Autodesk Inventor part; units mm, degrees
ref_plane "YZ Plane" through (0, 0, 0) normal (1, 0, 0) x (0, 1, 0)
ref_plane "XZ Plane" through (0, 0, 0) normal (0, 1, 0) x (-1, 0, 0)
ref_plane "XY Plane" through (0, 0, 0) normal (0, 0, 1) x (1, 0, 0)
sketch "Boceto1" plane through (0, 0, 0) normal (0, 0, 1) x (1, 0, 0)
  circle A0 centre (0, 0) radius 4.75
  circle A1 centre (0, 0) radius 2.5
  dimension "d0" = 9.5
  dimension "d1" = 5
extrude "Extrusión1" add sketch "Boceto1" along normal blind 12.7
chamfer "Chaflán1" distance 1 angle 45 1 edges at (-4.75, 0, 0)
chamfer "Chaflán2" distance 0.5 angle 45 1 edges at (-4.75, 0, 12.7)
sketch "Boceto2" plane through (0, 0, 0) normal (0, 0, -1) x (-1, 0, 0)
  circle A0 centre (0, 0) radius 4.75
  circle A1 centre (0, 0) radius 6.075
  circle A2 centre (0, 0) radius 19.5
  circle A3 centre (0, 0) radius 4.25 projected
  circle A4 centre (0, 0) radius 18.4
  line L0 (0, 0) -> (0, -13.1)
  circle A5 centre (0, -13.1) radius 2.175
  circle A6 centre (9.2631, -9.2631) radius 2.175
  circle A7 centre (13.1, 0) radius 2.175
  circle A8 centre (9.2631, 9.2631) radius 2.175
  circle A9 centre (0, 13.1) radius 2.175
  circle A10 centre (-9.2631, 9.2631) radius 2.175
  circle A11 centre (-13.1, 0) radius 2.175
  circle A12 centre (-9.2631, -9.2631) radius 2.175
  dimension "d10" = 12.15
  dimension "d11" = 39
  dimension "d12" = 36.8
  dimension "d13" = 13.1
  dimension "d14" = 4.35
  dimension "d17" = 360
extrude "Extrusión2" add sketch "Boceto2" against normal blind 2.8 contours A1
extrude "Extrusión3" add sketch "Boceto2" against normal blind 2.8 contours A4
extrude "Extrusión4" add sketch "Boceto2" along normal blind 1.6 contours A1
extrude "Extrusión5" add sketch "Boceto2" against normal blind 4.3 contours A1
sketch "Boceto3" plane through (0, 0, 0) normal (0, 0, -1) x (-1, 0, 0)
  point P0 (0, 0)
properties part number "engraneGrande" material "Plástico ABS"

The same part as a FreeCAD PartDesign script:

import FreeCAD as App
import Part
import Sketcher
Q = App.Units.Quantity


def edges_at(feature, points):
    """Names of the edges that pass closest to the given points."""
    edges = feature.Shape.Edges
    near = lambda p: min(range(len(edges)), key=lambda i: edges[i].distToShape(Part.Vertex(*p))[0])
    return sorted({f"Edge{near(p) + 1}" for p in points})

doc = App.newDocument("Part")
body = doc.addObject("PartDesign::Body", "Body")

# Sketch on XY plane
sketch1 = body.newObject("Sketcher::SketchObject", "Sketch")
sketch1.AttachmentSupport = (doc.getObject("XY_Plane"), [""])
sketch1.MapMode = "FlatFace"
sketch1.addGeometry([
    Part.Circle(App.Vector(0, 0, 0), App.Vector(0, 0, 1), 4.8),
    Part.Circle(App.Vector(0, 0, 0), App.Vector(0, 0, 1), 2.5),
], False)
sketch1.addConstraint([
    Sketcher.Constraint("Coincident", 0, 3, -1, 1),
    Sketcher.Constraint("Coincident", 1, 3, -1, 1),
    Sketcher.Constraint("Diameter", 1, Q("5 mm")),
    Sketcher.Constraint("Diameter", 0, Q("9.5 mm")),
])
pad1 = body.newObject("PartDesign::Pad", "Pad")
pad1.Profile = sketch1
pad1.Length = 12.7
doc.recompute()

chamfer = body.newObject("PartDesign::Chamfer", "Chamfer")
chamfer.Base = (pad1, edges_at(pad1, [(-4.75, 0, 0)]))
chamfer.Size = 1
doc.recompute()

chamfer2 = body.newObject("PartDesign::Chamfer", "Chamfer001")
chamfer2.Base = (chamfer, edges_at(chamfer, [(-4.75, 0, 12.7)]))
chamfer2.Size = 0.5

# Sketch on XY plane
sketch2 = body.newObject("Sketcher::SketchObject", "Sketch001")
sketch2.AttachmentSupport = (doc.getObject("XY_Plane"), [""])
sketch2.MapMode = "FlatFace"
sketch2.addGeometry([
    Part.Circle(App.Vector(0, 0, 0), App.Vector(0, 0, 1), 6.1),
    Part.Circle(App.Vector(0, 0, 0), App.Vector(0, 0, 1), 4.8),
], False)
sketch2.addConstraint([
    Sketcher.Constraint("Coincident", 0, 3, -1, 1),
    Sketcher.Constraint("Coincident", 1, 3, -1, 1),
    Sketcher.Constraint("Diameter", 0, Q("12.15 mm")),
    Sketcher.Constraint("Diameter", 1, Q("9.5 mm")),
])
pad2 = body.newObject("PartDesign::Pad", "Pad001")
pad2.Profile = sketch2
pad2.Length = 2.8

# Sketch on XY plane
sketch3 = body.newObject("Sketcher::SketchObject", "Sketch002")
sketch3.AttachmentSupport = (doc.getObject("XY_Plane"), [""])
sketch3.MapMode = "FlatFace"
sketch3.addGeometry([
    Part.Circle(App.Vector(0, 0, 0), App.Vector(0, 0, 1), 18.4),  # 0
    Part.Circle(App.Vector(9.3, -9.3, 0), App.Vector(0, 0, 1), 2.2),  # 1
    Part.Circle(App.Vector(0, -13.1, 0), App.Vector(0, 0, 1), 2.2),  # 2
    Part.Circle(App.Vector(-9.3, -9.3, 0), App.Vector(0, 0, 1), 2.2),  # 3
    Part.Circle(App.Vector(13.1, 0, 0), App.Vector(0, 0, 1), 2.2),  # 4
    Part.Circle(App.Vector(9.3, 9.3, 0), App.Vector(0, 0, 1), 2.2),  # 5
    Part.Circle(App.Vector(0, 0, 0), App.Vector(0, 0, 1), 6.1),  # 6
    Part.Circle(App.Vector(-9.3, 9.3, 0), App.Vector(0, 0, 1), 2.2),  # 7
    Part.Circle(App.Vector(-13.1, 0, 0), App.Vector(0, 0, 1), 2.2),  # 8
    Part.Circle(App.Vector(0, 13.1, 0), App.Vector(0, 0, 1), 2.2),  # 9
], False)
sketch3.addConstraint([
    Sketcher.Constraint("Coincident", 0, 3, -1, 1),
    Sketcher.Constraint("Coincident", 6, 3, -1, 1),
    Sketcher.Constraint("Equal", 1, 2),
    Sketcher.Constraint("Equal", 2, 3),
    Sketcher.Constraint("Equal", 3, 4),
    Sketcher.Constraint("Equal", 4, 5),
    Sketcher.Constraint("Equal", 5, 7),
    Sketcher.Constraint("Equal", 7, 8),
    Sketcher.Constraint("Equal", 8, 9),
    Sketcher.Constraint("Symmetric", 3, 3, 5, 3, -1, 1),
    Sketcher.Constraint("Symmetric", 1, 3, 7, 3, -1, 1),
    Sketcher.Constraint("Symmetric", 4, 3, 8, 3, -1, 1),
    Sketcher.Constraint("Symmetric", 2, 3, 9, 3, -1, 1),
    Sketcher.Constraint("Symmetric", 1, 3, 3, 3, -2),
    Sketcher.Constraint("PointOnObject", 2, 3, -2),
    Sketcher.Constraint("PointOnObject", 4, 3, -1),
    Sketcher.Constraint("Diameter", 0, Q("36.8 mm")),
    Sketcher.Constraint("Diameter", 1, Q("4.35 mm")),
    Sketcher.Constraint("Diameter", 6, Q("12.15 mm")),
    Sketcher.Constraint("DistanceY", 2, 3, -1, 1, Q("13.1 mm")),
    Sketcher.Constraint("DistanceX", -1, 1, 4, 3, Q("13.1 mm")),
    Sketcher.Constraint("DistanceX", -1, 1, 1, 3, Q("9.263 mm")),
    Sketcher.Constraint("DistanceY", 1, 3, -1, 1, Q("9.263 mm")),
])
pad3 = body.newObject("PartDesign::Pad", "Pad002")
pad3.Profile = sketch3
pad3.Length = 2.8

# Sketch on XY plane
sketch4 = body.newObject("Sketcher::SketchObject", "Sketch003")
sketch4.AttachmentSupport = (doc.getObject("XY_Plane"), [""])
sketch4.MapMode = "FlatFace"
sketch4.addGeometry([
    Part.Circle(App.Vector(0, 0, 0), App.Vector(0, 0, 1), 6.1),
    Part.Circle(App.Vector(0, 0, 0), App.Vector(0, 0, 1), 4.8),
], False)
sketch4.addConstraint([
    Sketcher.Constraint("Coincident", 0, 3, -1, 1),
    Sketcher.Constraint("Coincident", 1, 3, -1, 1),
    Sketcher.Constraint("Diameter", 0, Q("12.15 mm")),
    Sketcher.Constraint("Diameter", 1, Q("9.5 mm")),
])
pad4 = body.newObject("PartDesign::Pad", "Pad003")
pad4.Profile = sketch4
pad4.Length = 1.6
pad4.Reversed = True

# Sketch on XY plane
sketch5 = body.newObject("Sketcher::SketchObject", "Sketch004")
sketch5.AttachmentSupport = (doc.getObject("XY_Plane"), [""])
sketch5.MapMode = "FlatFace"
sketch5.addGeometry([
    Part.Circle(App.Vector(0, 0, 0), App.Vector(0, 0, 1), 6.1),
    Part.Circle(App.Vector(0, 0, 0), App.Vector(0, 0, 1), 4.8),
], False)
sketch5.addConstraint([
    Sketcher.Constraint("Coincident", 0, 3, -1, 1),
    Sketcher.Constraint("Coincident", 1, 3, -1, 1),
    Sketcher.Constraint("Diameter", 0, Q("12.15 mm")),
    Sketcher.Constraint("Diameter", 1, Q("9.5 mm")),
])
pad5 = body.newObject("PartDesign::Pad", "Pad004")
pad5.Profile = sketch5
pad5.Length = 4.3

doc.recompute()
